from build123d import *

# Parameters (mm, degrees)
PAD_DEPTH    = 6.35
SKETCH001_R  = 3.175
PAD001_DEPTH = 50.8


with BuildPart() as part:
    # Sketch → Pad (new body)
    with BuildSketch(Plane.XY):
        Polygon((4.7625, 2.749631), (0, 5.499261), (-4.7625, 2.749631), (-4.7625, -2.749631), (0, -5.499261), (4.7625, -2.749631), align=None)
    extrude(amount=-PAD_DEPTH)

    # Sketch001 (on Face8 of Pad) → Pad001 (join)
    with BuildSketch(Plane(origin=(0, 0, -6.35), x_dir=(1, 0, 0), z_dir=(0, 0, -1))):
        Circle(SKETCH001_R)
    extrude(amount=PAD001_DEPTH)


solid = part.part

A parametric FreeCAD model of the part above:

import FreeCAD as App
import Part
import Sketcher
from FreeCAD import Vector
Q = App.Units.Quantity

doc = App.newDocument("Part")
params = doc.addObject("Spreadsheet::Sheet", "Params")
for row, (alias, value) in enumerate([
    ("pad1_length", "0.25 in"),
    ("sketch2_diameter", "0.25 in"),
    ("pad2_length", "2 in"),
], start=1):
    params.set(f"A{row}", alias)
    params.set(f"B{row}", "=" + value)
    params.setAlias(f"B{row}", alias)

body = doc.addObject("PartDesign::Body", "Body")

# Sketch on XY plane
sketch1 = body.newObject("Sketcher::SketchObject", "Sketch")
sketch1.AttachmentSupport = (doc.getObject("XY_Plane"), [""])
sketch1.MapMode = "FlatFace"
sketch1.addGeometry([
    Part.LineSegment(Vector(5, 3, 0), Vector(0, 5, 0)),  # 0
    Part.LineSegment(Vector(0, 5, 0), Vector(-5, 3, 0)),  # 1
    Part.LineSegment(Vector(-5, 3, 0), Vector(-5, -3, 0)),  # 2
    Part.LineSegment(Vector(-5, -3, 0), Vector(0, -5, 0)),  # 3
    Part.LineSegment(Vector(0, -5, 0), Vector(5, -3, 0)),  # 4
    Part.LineSegment(Vector(5, -3, 0), Vector(5, 3, 0)),  # 5
], False)
sketch1.addConstraint([
    Sketcher.Constraint("Coincident", 0, 2, 1, 1),
    Sketcher.Constraint("Coincident", 1, 2, 2, 1),
    Sketcher.Constraint("Coincident", 2, 2, 3, 1),
    Sketcher.Constraint("Coincident", 3, 2, 4, 1),
    Sketcher.Constraint("Coincident", 4, 2, 5, 1),
    Sketcher.Constraint("Coincident", 5, 2, 0, 1),
    Sketcher.Constraint("Vertical", 2),
    Sketcher.Constraint("Vertical", 5),
    Sketcher.Constraint("Symmetric", 0, 2, 3, 2, -1, 1),
    Sketcher.Constraint("Symmetric", 1, 2, 4, 2, -1, 1),
    Sketcher.Constraint("PointOnObject", 0, 2, -2),
    Sketcher.Constraint("Parallel", 0, 3),
    Sketcher.Constraint("Horizontal", 2, 2, 4, 2),
    Sketcher.Constraint("Angle", 0, Q("150.000006 deg")),
    Sketcher.Constraint("DistanceX", 1, 2, -1, 1, Q("0.1875 in")),
    Sketcher.Constraint("DistanceY", 2, 2, 2, 1, Q("5.499262 mm")),
])
pad1 = body.newObject("PartDesign::Pad", "Pad")
pad1.Profile = sketch1
pad1.setExpression("Length", "Params.pad1_length")
pad1.Reversed = True

# Sketch on XY plane
sketch2 = body.newObject("Sketcher::SketchObject", "Sketch001")
sketch2.AttachmentSupport = (doc.getObject("XY_Plane"), [""])
sketch2.MapMode = "FlatFace"
sketch2.AttachmentOffset = App.Placement(Vector(0, 0, -0.25 * 25.4), App.Rotation())
sketch2.addGeometry(Part.Circle(Vector(0, 0, 0), Vector(0, 0, 1), 3.2), False)
sketch2.addConstraint([
    Sketcher.Constraint("Coincident", 0, 3, -1, 1),
    Sketcher.Constraint("Diameter", 0, Q("0.25 in")),
])
sketch2.setExpression("Constraints[1]", "Params.sketch2_diameter")
pad2 = body.newObject("PartDesign::Pad", "Pad001")
pad2.Profile = sketch2
pad2.setExpression("Length", "Params.pad2_length")
pad2.Reversed = True

doc.recompute()
